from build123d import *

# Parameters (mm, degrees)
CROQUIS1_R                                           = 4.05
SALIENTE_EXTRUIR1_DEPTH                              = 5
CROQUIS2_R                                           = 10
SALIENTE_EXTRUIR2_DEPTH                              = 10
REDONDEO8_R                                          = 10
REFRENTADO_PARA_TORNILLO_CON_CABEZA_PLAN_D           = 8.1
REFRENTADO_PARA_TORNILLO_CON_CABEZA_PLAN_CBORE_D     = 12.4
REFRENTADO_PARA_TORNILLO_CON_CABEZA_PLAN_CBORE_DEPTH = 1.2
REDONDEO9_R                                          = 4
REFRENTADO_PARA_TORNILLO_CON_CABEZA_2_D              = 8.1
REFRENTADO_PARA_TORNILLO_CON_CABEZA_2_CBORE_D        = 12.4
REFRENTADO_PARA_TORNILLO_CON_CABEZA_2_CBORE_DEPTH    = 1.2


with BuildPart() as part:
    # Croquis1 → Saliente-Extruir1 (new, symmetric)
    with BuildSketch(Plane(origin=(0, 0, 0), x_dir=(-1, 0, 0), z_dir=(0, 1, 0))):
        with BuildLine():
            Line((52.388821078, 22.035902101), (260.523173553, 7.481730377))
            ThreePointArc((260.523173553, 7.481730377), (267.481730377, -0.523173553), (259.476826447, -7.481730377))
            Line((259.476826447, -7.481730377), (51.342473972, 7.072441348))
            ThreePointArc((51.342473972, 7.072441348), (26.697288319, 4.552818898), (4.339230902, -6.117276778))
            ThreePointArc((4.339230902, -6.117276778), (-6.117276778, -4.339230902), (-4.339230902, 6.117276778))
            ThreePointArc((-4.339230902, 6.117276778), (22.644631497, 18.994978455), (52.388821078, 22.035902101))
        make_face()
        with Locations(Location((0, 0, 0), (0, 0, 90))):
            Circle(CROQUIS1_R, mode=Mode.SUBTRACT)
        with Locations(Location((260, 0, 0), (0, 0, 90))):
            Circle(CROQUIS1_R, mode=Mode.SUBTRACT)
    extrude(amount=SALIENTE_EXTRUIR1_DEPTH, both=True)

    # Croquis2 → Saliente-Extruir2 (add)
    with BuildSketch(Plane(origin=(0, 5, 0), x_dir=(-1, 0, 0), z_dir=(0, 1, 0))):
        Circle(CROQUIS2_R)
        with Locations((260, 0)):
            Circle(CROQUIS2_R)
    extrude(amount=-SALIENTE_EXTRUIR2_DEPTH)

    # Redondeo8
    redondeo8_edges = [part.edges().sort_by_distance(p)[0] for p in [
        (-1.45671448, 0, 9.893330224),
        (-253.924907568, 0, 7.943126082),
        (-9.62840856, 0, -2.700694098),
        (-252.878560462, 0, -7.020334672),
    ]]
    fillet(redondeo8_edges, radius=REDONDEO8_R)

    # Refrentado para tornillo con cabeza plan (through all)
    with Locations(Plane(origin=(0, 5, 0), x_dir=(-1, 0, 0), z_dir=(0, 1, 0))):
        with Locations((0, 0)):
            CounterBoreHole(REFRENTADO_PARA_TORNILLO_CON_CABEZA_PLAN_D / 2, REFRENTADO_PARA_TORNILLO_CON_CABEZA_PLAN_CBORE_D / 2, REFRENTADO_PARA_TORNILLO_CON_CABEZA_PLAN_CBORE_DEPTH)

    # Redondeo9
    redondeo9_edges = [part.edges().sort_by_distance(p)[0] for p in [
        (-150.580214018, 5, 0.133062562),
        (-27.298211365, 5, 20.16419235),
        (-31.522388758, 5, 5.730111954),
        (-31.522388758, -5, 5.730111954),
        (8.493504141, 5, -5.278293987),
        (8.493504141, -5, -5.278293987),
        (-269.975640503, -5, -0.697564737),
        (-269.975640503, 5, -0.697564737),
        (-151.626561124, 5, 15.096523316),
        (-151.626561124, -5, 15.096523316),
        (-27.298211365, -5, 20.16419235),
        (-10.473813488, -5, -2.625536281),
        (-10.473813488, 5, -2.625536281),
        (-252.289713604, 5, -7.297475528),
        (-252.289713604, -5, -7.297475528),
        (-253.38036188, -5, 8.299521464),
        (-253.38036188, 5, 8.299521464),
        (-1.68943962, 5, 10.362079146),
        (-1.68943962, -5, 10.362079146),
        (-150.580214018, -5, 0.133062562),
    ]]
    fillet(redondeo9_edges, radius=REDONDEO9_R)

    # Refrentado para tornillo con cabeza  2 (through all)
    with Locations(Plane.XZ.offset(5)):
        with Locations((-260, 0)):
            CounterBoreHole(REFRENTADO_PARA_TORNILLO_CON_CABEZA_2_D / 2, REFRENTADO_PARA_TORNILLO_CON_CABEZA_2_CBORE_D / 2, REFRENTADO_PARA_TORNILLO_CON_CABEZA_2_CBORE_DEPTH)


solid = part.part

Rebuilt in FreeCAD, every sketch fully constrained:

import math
import FreeCAD as App
import Part
import Sketcher
from FreeCAD import Vector
Q = App.Units.Quantity


def edges_at(feature, points):
    """Names of the edges that pass closest to the given points."""
    edges = feature.Shape.Edges
    near = lambda p: min(range(len(edges)), key=lambda i: edges[i].distToShape(Part.Vertex(*p))[0])
    return sorted({f"Edge{near(p) + 1}" for p in points})

doc = App.newDocument("Part")
body = doc.addObject("PartDesign::Body", "Body")

sketch1 = body.newObject("Sketcher::SketchObject", "Sketch")
sketch1.AttachmentSupport = (doc.getObject("XZ_Plane"), [""])
sketch1.MapMode = "FlatFace"
sketch1.addGeometry(Part.LineSegment(Vector(-260.523174, 7.48173, 0), Vector(-52.388821, 22.035902, 0)), False)
sketch1.addGeometry(Part.ArcOfCircle(Part.Circle(Vector(-46.28513, -65.250952, 0), Vector(0, 0, 1), 87.5), math.radians(54.650386), math.radians(94)), False)
sketch1.addGeometry(Part.ArcOfCircle(Part.Circle(Vector(0, 0, 0), Vector(0, 0, 1), 7.5), math.radians(-125.349614), math.radians(54.650386)), False)
sketch1.addGeometry(Part.ArcOfCircle(Part.Circle(Vector(-46.28513, -65.250952, 0), Vector(0, 0, 1), 72.5), math.radians(54.650386), math.radians(94)), False)
sketch1.addGeometry(Part.LineSegment(Vector(-51.342474, 7.072441, 0), Vector(-259.476826, -7.48173, 0)), False)
sketch1.addGeometry(Part.ArcOfCircle(Part.Circle(Vector(-260, 0, 0), Vector(0, 0, 1), 7.5), math.radians(94), math.radians(274)), False)
sketch1.addGeometry(Part.Circle(Vector(-260, 0, 0), Vector(0, 0, 1), 4.05), False)
sketch1.addGeometry(Part.Circle(Vector(0, 0, 0), Vector(0, 0, 1), 4.05), False)
sketch1.addConstraint(Sketcher.Constraint("Tangent", 0, 2, 1, 2))
sketch1.addConstraint(Sketcher.Constraint("Tangent", 1, 1, 2, 2))
sketch1.addConstraint(Sketcher.Constraint("Tangent", 2, 1, 3, 1))
sketch1.addConstraint(Sketcher.Constraint("Tangent", 3, 2, 4, 1))
sketch1.addConstraint(Sketcher.Constraint("Tangent", 4, 2, 5, 2))
sketch1.addConstraint(Sketcher.Constraint("Tangent", 5, 1, 0, 1))
sketch1.addConstraint(Sketcher.Constraint("Coincident", 2, 3, -1, 1))
sketch1.addConstraint(Sketcher.Constraint("Coincident", 7, 3, -1, 1))
sketch1.addConstraint(Sketcher.Constraint("Coincident", 3, 3, 1, 3))
sketch1.addConstraint(Sketcher.Constraint("Coincident", 6, 3, 5, 3))
sketch1.addConstraint(Sketcher.Constraint("Equal", 2, 5))
sketch1.addConstraint(Sketcher.Constraint("Equal", 6, 7))
sketch1.addConstraint(Sketcher.Constraint("PointOnObject", 5, 3, -1))
sketch1.addConstraint(Sketcher.Constraint("Diameter", 6, 8.1))
sketch1.addConstraint(Sketcher.Constraint("Radius", 1, 87.5))
sketch1.addConstraint(Sketcher.Constraint("Radius", 2, 7.5))
sketch1.addConstraint(Sketcher.Constraint("Angle", 0, Q("4 deg")))
sketch1.addConstraint(Sketcher.Constraint("DistanceX", 5, 3, -1, 1, 260.0))
pad1 = body.newObject("PartDesign::Pad", "Pad")
pad1.Profile = sketch1
pad1.Length = 10
pad1.Midplane = True

sketch2 = body.newObject("Sketcher::SketchObject", "Sketch001")
sketch2.AttachmentSupport = (doc.getObject("XZ_Plane"), [""])
sketch2.MapMode = "FlatFace"
sketch2.AttachmentOffset = App.Placement(Vector(0, 0, -5), App.Rotation())
sketch2.addGeometry(Part.Circle(Vector(0, 0, 0), Vector(0, 0, 1), 10), False)
sketch2.addGeometry(Part.Circle(Vector(-260, 0, 0), Vector(0, 0, 1), 10), False)
sketch2.addConstraint(Sketcher.Constraint("Coincident", 0, 3, -1, 1))
sketch2.addConstraint(Sketcher.Constraint("Equal", 0, 1))
sketch2.addConstraint(Sketcher.Constraint("PointOnObject", 1, 3, -1))
sketch2.addConstraint(Sketcher.Constraint("Diameter", 0, 20.0))
sketch2.addConstraint(Sketcher.Constraint("DistanceX", 1, 3, -1, 1, 260.0))
pad2 = body.newObject("PartDesign::Pad", "Pad001")
pad2.Profile = sketch2
pad2.Length = 10
doc.recompute()

fillet = body.newObject("PartDesign::Fillet", "Fillet")
fillet.Base = (pad2, edges_at(pad2, [
    (-1.457, 0, 9.893),
    (-253.925, 0, 7.943),
    (-9.628, 0, -2.701),
    (-252.879, 0, -7.02),
]))
fillet.Radius = 10

sketch3 = body.newObject("Sketcher::SketchObject", "Sketch002")
sketch3.AttachmentSupport = (doc.getObject("XZ_Plane"), [""])
sketch3.MapMode = "FlatFace"
sketch3.AttachmentOffset = App.Placement(Vector(0, 0, -5), App.Rotation())
sketch3.addGeometry(Part.Circle(Vector(0, 0, 0), Vector(0, 0, 1), 4.05), False)
sketch3.addConstraint(Sketcher.Constraint("Coincident", 0, 3, -1, 1))
sketch3.addConstraint(Sketcher.Constraint("Diameter", 0, 8.1))
doc.recompute()
hole = body.newObject("PartDesign::Hole", "Hole")
hole.Profile = sketch3
hole.ThreadType = "None"
hole.Diameter = 8.1
hole.DepthType = "ThroughAll"
hole.HoleCutType = "Counterbore"
hole.HoleCutDiameter = 12.4
hole.HoleCutDepth = 1.2
hole.Reversed = True
doc.recompute()

fillet2 = body.newObject("PartDesign::Fillet", "Fillet001")
fillet2.Base = (hole, edges_at(hole, [
    (-150.58, 5, 0.133),
    (-27.298, 5, 20.164),
    (-31.522, 5, 5.73),
    (-31.522, -5, 5.73),
    (8.494, 5, -5.278),
    (8.494, -5, -5.278),
    (-269.976, -5, -0.698),
    (-269.976, 5, -0.698),
    (-151.627, 5, 15.097),
    (-151.627, -5, 15.097),
    (-27.298, -5, 20.164),
    (-10.474, -5, -2.626),
    (-10.474, 5, -2.626),
    (-252.29, 5, -7.297),
    (-252.29, -5, -7.297),
    (-253.38, -5, 8.3),
    (-253.38, 5, 8.3),
    (-1.689, 5, 10.362),
    (-1.689, -5, 10.362),
    (-150.58, -5, 0.133),
]))
fillet2.Radius = 4

sketch4 = body.newObject("Sketcher::SketchObject", "Sketch003")
sketch4.AttachmentSupport = (doc.getObject("XZ_Plane"), [""])
sketch4.MapMode = "FlatFace"
sketch4.AttachmentOffset = App.Placement(Vector(0, 0, 5), App.Rotation())
sketch4.addGeometry(Part.Circle(Vector(-260, 0, 0), Vector(0, 0, 1), 4.05), False)
sketch4.addConstraint(Sketcher.Constraint("PointOnObject", 0, 3, -1))
sketch4.addConstraint(Sketcher.Constraint("Diameter", 0, 8.1))
sketch4.addConstraint(Sketcher.Constraint("DistanceX", 0, 3, -1, 1, 260.0))
doc.recompute()
hole2 = body.newObject("PartDesign::Hole", "Hole001")
hole2.Profile = sketch4
hole2.ThreadType = "None"
hole2.Diameter = 8.1
hole2.DepthType = "ThroughAll"
hole2.HoleCutType = "Counterbore"
hole2.HoleCutDiameter = 12.4
hole2.HoleCutDepth = 1.2

doc.recompute()
